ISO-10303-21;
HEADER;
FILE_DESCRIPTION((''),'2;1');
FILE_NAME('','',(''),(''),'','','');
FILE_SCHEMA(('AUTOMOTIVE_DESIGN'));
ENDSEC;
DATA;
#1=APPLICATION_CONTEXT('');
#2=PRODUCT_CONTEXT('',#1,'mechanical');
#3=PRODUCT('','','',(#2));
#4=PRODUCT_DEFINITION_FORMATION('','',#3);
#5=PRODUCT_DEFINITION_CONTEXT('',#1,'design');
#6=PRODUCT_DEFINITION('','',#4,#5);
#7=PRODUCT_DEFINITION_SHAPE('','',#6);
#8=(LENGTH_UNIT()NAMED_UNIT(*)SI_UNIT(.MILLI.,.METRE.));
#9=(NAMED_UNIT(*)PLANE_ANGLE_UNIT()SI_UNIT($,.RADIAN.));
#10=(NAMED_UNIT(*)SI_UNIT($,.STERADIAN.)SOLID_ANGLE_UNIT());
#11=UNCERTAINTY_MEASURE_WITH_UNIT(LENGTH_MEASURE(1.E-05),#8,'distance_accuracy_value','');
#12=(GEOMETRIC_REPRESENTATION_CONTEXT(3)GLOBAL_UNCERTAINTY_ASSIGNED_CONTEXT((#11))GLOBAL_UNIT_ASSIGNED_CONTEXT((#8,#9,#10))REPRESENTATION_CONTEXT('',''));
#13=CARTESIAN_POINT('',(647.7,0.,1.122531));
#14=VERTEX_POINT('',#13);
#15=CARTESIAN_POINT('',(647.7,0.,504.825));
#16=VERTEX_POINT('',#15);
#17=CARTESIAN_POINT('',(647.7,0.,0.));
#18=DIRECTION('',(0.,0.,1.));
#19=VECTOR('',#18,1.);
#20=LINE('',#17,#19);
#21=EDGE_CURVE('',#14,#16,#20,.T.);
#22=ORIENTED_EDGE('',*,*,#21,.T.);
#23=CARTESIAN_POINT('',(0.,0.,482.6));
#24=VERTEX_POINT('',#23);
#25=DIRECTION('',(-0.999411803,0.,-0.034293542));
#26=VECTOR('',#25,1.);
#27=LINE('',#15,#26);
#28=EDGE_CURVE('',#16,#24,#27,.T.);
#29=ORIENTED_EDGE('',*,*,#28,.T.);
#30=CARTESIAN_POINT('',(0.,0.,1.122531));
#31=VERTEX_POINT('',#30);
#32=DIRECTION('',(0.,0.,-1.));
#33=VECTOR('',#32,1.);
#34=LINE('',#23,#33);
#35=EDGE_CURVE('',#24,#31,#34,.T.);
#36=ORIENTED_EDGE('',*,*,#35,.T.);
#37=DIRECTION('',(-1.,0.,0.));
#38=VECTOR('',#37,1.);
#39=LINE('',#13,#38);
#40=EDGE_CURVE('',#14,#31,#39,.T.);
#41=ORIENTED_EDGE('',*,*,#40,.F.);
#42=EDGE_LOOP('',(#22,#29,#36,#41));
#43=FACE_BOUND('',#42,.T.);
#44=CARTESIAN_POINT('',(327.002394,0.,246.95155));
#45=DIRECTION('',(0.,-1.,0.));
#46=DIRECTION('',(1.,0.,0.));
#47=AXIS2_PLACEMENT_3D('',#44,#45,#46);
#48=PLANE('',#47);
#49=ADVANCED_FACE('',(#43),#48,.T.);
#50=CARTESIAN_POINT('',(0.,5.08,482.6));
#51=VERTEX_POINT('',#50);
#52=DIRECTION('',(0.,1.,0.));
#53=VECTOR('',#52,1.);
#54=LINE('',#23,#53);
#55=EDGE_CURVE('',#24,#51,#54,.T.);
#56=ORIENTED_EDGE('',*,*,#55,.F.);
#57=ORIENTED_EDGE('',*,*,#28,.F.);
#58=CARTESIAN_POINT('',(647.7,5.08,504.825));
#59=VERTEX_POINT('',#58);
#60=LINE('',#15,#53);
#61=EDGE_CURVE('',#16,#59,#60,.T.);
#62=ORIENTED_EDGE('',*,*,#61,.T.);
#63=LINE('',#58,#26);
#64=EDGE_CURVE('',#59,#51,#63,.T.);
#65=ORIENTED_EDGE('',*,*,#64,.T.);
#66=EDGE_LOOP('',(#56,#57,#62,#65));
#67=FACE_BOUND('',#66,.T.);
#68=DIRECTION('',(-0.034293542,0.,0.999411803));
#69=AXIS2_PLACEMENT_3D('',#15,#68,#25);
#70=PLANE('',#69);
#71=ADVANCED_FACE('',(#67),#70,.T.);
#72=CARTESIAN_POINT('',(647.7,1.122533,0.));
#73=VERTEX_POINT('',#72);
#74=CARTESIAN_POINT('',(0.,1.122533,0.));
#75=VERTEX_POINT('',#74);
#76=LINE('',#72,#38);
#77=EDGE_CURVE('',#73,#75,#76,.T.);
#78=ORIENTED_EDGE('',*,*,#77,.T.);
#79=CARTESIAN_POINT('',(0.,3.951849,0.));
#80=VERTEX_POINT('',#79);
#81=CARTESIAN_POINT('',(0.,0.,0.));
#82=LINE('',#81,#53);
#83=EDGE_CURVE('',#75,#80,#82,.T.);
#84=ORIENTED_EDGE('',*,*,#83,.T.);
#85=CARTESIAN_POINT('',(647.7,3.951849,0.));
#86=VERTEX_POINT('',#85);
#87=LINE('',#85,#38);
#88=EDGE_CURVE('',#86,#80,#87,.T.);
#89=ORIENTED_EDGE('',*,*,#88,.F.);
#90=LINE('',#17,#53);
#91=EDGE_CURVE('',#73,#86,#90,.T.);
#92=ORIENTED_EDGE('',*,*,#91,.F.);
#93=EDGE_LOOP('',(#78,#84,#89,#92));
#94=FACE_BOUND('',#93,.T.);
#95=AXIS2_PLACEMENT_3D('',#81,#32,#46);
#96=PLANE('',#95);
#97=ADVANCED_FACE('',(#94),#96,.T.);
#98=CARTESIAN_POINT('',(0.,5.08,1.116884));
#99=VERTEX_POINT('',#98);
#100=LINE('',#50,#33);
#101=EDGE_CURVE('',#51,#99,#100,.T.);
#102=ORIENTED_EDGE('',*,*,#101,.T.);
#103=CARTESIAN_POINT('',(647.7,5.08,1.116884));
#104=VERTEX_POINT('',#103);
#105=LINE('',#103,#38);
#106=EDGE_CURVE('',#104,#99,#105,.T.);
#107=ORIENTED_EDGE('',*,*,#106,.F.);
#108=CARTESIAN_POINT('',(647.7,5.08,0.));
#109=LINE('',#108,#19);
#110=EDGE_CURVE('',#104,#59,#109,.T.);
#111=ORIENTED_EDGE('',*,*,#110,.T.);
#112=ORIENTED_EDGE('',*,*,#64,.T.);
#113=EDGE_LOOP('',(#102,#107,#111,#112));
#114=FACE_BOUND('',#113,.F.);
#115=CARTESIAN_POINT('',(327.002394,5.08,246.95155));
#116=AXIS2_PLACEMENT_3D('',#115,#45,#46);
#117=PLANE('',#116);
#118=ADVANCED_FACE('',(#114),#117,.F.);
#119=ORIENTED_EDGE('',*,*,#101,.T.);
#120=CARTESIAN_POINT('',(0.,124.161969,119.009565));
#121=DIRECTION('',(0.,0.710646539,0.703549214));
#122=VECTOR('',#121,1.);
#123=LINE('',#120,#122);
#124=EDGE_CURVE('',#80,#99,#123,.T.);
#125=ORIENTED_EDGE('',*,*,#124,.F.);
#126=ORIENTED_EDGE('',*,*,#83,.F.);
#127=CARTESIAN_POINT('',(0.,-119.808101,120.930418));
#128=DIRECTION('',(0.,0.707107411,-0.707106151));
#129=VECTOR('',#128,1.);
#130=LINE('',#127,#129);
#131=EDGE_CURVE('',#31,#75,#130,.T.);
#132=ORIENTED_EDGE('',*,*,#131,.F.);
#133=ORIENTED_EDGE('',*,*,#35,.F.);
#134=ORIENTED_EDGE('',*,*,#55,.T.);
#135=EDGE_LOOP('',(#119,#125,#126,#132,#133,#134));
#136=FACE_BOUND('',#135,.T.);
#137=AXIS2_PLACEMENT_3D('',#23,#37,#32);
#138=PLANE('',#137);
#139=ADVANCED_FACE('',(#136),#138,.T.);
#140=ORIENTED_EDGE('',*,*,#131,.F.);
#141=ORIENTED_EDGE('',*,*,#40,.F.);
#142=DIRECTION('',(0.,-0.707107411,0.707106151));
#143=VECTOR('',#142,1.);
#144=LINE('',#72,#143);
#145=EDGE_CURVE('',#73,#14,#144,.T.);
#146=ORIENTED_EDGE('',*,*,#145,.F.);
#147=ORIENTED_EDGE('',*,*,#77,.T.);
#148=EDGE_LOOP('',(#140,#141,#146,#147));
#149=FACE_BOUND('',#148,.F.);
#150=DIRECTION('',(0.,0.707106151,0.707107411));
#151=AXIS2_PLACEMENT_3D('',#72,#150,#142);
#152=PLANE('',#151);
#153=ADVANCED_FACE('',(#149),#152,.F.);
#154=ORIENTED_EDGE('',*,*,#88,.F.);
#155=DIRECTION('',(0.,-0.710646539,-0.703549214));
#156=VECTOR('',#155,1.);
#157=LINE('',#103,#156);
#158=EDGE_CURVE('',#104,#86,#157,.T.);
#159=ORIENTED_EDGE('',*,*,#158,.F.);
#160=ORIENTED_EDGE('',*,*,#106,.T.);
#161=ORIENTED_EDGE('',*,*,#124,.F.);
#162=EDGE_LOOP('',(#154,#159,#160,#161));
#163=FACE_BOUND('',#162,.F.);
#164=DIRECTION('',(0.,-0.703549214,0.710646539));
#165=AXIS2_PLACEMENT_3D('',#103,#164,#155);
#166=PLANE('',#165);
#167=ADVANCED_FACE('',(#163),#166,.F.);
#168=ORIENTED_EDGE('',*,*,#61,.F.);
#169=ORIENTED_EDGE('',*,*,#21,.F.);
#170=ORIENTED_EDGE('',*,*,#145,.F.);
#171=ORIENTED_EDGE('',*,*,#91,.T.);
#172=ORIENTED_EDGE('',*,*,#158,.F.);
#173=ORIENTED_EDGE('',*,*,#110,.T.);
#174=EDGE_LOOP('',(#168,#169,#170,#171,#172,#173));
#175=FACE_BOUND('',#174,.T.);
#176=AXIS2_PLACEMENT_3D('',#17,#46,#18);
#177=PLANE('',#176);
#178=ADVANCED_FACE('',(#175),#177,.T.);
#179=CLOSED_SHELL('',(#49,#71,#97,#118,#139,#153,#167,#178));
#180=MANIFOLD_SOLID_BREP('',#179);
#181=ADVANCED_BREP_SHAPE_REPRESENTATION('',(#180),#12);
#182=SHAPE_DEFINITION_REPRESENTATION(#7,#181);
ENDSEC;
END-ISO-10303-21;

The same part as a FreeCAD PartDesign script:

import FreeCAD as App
import Part
import Sketcher

V = App.Vector
Q = App.Units.Quantity


def add_polygon(sketch, points):
    """Adds a closed chain of lines whose ends are joined by coincident constraints."""
    first, n = sketch.GeometryCount, len(points)
    for a, b in zip(points, points[1:] + points[:1]):
        sketch.addGeometry(Part.LineSegment(App.Vector(*a, 0), App.Vector(*b, 0)), False)
    for i in range(n):
        sketch.addConstraint(Sketcher.Constraint("Coincident", first + i, 2, first + (i + 1) % n, 1))

doc = App.newDocument("Part")
body = doc.addObject("PartDesign::Body", "Body")

sketch1 = doc.addObject("Sketcher::SketchObject", "Sketch")
body.addObject(sketch1)
sketch1.AttachmentSupport = (doc.XZ_Plane, [""])
sketch1.MapMode = "FlatFace"
add_polygon(sketch1, [(0, 483), (0, 0), (648, 0), (648, 505)])
sketch1.addConstraint(Sketcher.Constraint("Vertical", 0))
sketch1.addConstraint(Sketcher.Constraint("Horizontal", 1))
sketch1.addConstraint(Sketcher.Constraint("Vertical", 2))
sketch1.addConstraint(Sketcher.Constraint("Coincident", 0, 2, -1, 1))
sketch1.addConstraint(Sketcher.Constraint("DistanceY", 0, 2, 0, 1, Q("19 in")))
sketch1.addConstraint(Sketcher.Constraint("DistanceX", 1, 1, 1, 2, Q("25.5 in")))
sketch1.addConstraint(Sketcher.Constraint("DistanceY", 2, 1, 2, 2, Q("19.875 in")))
pad1 = doc.addObject("PartDesign::Pad", "Pad")
body.addObject(pad1)
pad1.Profile = sketch1
pad1.Length = Q("0.2 in")
pad1.Reversed = True

sketch2 = doc.addObject("Sketcher::SketchObject", "Sketch001")
body.addObject(sketch2)
sketch2.AttachmentSupport = (doc.YZ_Plane, [""])
sketch2.MapMode = "FlatFace"
sketch2.AttachmentOffset = App.Placement(V(0, 0, 25.5 * 25.4), App.Rotation())
add_polygon(sketch2, [(5.1, 1.1), (4, 0), (5.1, 0)])
add_polygon(sketch2, [(0, 1.1), (0, 0), (1.1, 0)])
sketch2.addConstraint(Sketcher.Constraint("Horizontal", 1))
sketch2.addConstraint(Sketcher.Constraint("Vertical", 2))
sketch2.addConstraint(Sketcher.Constraint("Vertical", 3))
sketch2.addConstraint(Sketcher.Constraint("Horizontal", 4))
sketch2.addConstraint(Sketcher.Constraint("Coincident", 3, 2, -1, 1))
sketch2.addConstraint(Sketcher.Constraint("PointOnObject", 0, 2, -1))
sketch2.addConstraint(Sketcher.Constraint("Equal", 0, 5))
sketch2.addConstraint(Sketcher.Constraint("DistanceX", -1, 1, 1, 2, Q("0.2 in")))
sketch2.addConstraint(Sketcher.Constraint("Distance", 0, Q("0.0625 in")))
sketch2.addConstraint(Sketcher.Constraint("DistanceX", 1, 1, 1, 2, 1.128151))
sketch2.addConstraint(Sketcher.Constraint("DistanceY", 3, 2, 3, 1, 1.122531))
pocket1 = doc.addObject("PartDesign::Pocket", "Pocket")
body.addObject(pocket1)
pocket1.Profile = sketch2
pocket1.Length = Q("29.6 in")

doc.recompute()
